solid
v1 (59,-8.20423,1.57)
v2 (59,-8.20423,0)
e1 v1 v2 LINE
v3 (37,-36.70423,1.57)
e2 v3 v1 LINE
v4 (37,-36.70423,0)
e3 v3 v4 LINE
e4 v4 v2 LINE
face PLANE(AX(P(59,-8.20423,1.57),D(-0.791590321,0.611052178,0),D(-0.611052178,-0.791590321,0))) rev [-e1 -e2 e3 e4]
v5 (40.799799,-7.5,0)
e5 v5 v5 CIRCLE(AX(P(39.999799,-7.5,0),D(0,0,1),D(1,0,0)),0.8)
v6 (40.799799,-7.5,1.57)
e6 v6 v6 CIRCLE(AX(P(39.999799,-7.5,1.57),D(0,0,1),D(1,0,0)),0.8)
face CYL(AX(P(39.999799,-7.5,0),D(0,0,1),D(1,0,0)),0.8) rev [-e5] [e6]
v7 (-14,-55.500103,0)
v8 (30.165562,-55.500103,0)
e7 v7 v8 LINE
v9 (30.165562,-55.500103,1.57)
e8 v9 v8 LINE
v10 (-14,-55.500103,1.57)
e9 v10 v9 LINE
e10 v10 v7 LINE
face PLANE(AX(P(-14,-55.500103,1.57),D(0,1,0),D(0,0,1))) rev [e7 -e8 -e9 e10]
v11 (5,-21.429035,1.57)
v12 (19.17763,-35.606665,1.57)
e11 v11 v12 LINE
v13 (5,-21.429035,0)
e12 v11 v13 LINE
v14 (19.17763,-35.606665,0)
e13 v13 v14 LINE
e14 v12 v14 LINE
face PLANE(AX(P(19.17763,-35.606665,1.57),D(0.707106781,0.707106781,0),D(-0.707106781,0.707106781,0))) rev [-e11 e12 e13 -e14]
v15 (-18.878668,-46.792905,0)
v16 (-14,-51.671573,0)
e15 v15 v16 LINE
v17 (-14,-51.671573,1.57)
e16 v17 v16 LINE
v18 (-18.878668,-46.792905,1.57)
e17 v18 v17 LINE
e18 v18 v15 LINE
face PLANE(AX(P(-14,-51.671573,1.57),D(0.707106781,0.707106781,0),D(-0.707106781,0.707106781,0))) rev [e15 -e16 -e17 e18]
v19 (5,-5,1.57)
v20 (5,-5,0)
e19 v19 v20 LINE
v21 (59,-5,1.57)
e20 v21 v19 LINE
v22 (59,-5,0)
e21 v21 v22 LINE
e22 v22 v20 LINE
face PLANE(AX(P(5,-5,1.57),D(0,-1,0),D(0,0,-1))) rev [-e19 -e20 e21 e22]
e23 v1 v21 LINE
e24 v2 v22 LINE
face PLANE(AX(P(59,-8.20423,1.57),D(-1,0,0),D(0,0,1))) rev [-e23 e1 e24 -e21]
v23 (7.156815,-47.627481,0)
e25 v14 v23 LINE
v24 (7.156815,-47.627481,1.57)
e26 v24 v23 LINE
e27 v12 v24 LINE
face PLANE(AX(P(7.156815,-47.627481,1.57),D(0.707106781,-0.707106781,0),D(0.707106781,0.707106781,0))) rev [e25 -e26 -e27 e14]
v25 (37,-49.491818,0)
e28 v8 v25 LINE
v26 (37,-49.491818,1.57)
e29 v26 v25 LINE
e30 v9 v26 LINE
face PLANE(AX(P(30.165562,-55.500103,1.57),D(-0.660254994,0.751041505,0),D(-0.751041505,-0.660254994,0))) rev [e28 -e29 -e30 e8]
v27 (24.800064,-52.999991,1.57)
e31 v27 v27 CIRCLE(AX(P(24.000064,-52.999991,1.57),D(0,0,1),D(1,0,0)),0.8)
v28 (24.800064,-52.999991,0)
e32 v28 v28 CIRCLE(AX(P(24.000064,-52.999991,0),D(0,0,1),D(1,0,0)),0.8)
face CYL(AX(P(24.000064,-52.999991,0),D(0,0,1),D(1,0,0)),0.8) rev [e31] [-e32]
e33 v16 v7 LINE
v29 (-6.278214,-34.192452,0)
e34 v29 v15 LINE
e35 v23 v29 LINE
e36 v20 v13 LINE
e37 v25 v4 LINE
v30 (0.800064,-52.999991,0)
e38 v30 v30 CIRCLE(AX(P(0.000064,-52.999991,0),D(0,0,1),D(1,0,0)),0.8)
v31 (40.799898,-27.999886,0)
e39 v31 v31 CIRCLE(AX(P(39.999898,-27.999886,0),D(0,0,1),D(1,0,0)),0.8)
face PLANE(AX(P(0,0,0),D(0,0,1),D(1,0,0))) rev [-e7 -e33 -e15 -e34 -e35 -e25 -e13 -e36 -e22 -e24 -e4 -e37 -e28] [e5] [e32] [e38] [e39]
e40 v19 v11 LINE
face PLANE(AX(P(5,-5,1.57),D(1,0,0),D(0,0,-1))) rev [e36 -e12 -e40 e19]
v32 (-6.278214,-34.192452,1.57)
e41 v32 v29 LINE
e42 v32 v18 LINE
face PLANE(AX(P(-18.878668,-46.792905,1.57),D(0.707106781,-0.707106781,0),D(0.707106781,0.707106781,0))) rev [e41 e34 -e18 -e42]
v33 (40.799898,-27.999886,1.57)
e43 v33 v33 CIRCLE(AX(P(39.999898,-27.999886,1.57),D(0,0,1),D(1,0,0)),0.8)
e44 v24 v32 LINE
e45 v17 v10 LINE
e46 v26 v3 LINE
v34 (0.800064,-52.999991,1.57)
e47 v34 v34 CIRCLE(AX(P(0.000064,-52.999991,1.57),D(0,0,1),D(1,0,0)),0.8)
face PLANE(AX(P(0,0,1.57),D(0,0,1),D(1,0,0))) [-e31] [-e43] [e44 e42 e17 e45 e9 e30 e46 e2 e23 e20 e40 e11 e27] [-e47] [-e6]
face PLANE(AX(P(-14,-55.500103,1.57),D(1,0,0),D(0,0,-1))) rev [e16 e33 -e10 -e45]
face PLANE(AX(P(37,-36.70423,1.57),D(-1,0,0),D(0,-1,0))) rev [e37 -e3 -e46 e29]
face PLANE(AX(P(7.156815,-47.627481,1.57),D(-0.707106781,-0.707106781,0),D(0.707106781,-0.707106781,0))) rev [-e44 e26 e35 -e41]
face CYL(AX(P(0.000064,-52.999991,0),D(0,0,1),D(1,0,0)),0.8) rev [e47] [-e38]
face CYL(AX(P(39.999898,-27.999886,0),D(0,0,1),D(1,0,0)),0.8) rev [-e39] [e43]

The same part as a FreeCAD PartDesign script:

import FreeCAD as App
import Part
import Sketcher
from FreeCAD import Vector
Q = App.Units.Quantity

doc = App.newDocument("Part")
body = doc.addObject("PartDesign::Body", "Body")

# Sketch on XY plane
sketch1 = body.newObject("Sketcher::SketchObject", "Sketch")
sketch1.AttachmentSupport = (doc.getObject("XY_Plane"), [""])
sketch1.MapMode = "FlatFace"
sketch1.addGeometry([
    Part.LineSegment(Vector(-14, -51.7, 0), Vector(-14, -55.5, 0)),  # 0
    Part.LineSegment(Vector(-14, -55.5, 0), Vector(30.2, -55.5, 0)),  # 1
    Part.LineSegment(Vector(30.2, -55.5, 0), Vector(37, -49.5, 0)),  # 2
    Part.LineSegment(Vector(37, -49.5, 0), Vector(37, -36.7, 0)),  # 3
    Part.LineSegment(Vector(37, -36.7, 0), Vector(59, -8.2, 0)),  # 4
    Part.LineSegment(Vector(59, -8.2, 0), Vector(59, -5, 0)),  # 5
    Part.LineSegment(Vector(59, -5, 0), Vector(5, -5, 0)),  # 6
    Part.LineSegment(Vector(5, -5, 0), Vector(5, -21.4, 0)),  # 7
    Part.LineSegment(Vector(5, -21.4, 0), Vector(19.2, -35.6, 0)),  # 8
    Part.LineSegment(Vector(19.2, -35.6, 0), Vector(7.2, -47.6, 0)),  # 9
    Part.LineSegment(Vector(7.2, -47.6, 0), Vector(-6.3, -34.2, 0)),  # 10
    Part.LineSegment(Vector(-6.3, -34.2, 0), Vector(-18.9, -46.8, 0)),  # 11
    Part.LineSegment(Vector(-18.9, -46.8, 0), Vector(-14, -51.7, 0)),  # 12
], False)
sketch1.addConstraint([
    Sketcher.Constraint("Coincident", 0, 2, 1, 1),
    Sketcher.Constraint("Coincident", 1, 2, 2, 1),
    Sketcher.Constraint("Coincident", 2, 2, 3, 1),
    Sketcher.Constraint("Coincident", 3, 2, 4, 1),
    Sketcher.Constraint("Coincident", 4, 2, 5, 1),
    Sketcher.Constraint("Coincident", 5, 2, 6, 1),
    Sketcher.Constraint("Coincident", 6, 2, 7, 1),
    Sketcher.Constraint("Coincident", 7, 2, 8, 1),
    Sketcher.Constraint("Coincident", 8, 2, 9, 1),
    Sketcher.Constraint("Coincident", 9, 2, 10, 1),
    Sketcher.Constraint("Coincident", 10, 2, 11, 1),
    Sketcher.Constraint("Coincident", 11, 2, 12, 1),
    Sketcher.Constraint("Coincident", 12, 2, 0, 1),
    Sketcher.Constraint("Vertical", 0),
    Sketcher.Constraint("Horizontal", 1),
    Sketcher.Constraint("Vertical", 3),
    Sketcher.Constraint("Vertical", 5),
    Sketcher.Constraint("Horizontal", 6),
    Sketcher.Constraint("Vertical", 7),
    Sketcher.Constraint("Perpendicular", 8, 9),
    Sketcher.Constraint("Perpendicular", 9, 10),
    Sketcher.Constraint("Perpendicular", 10, 11),
    Sketcher.Constraint("Perpendicular", 11, 12),
    Sketcher.Constraint("DistanceX", 6, 2, 6, 1, Q("54 mm")),
    Sketcher.Constraint("Angle", 8, Q("-45 deg")),
    Sketcher.Constraint("Distance", 9, Q("17 mm")),
    Sketcher.Constraint("Distance", 10, Q("19 mm")),
    Sketcher.Constraint("DistanceX", 0, 2, -1, 1, Q("14 mm")),
    Sketcher.Constraint("DistanceX", -1, 1, 2, 2, Q("37 mm")),
    Sketcher.Constraint("DistanceX", -1, 1, 4, 2, Q("59 mm")),
    Sketcher.Constraint("DistanceY", 5, 2, -1, 1, Q("5 mm")),
    Sketcher.Constraint("DistanceY", 3, 2, 4, 2, Q("28.5 mm")),
    Sketcher.Constraint("DistanceY", 0, 2, 0, 1, Q("3.82853 mm")),
    Sketcher.Constraint("DistanceY", 5, 1, 5, 2, Q("3.20423 mm")),
    Sketcher.Constraint("DistanceX", 1, 1, 1, 2, Q("44.165562 mm")),
    Sketcher.Constraint("DistanceY", 3, 1, 3, 2, Q("12.787588 mm")),
    Sketcher.Constraint("DistanceY", 7, 2, 7, 1, Q("16.429035 mm")),
    Sketcher.Constraint("DistanceX", -1, 1, 8, 2, Q("19.17763 mm")),
    Sketcher.Constraint("DistanceY", 0, 2, 10, 2, Q("21.307651 mm")),
])
pad1 = body.newObject("PartDesign::Pad", "Pad")
pad1.Profile = sketch1
pad1.Length = 1.57

# Sketch on XY plane
sketch2 = body.newObject("Sketcher::SketchObject", "Sketch001")
sketch2.AttachmentSupport = (doc.getObject("XY_Plane"), [""])
sketch2.MapMode = "FlatFace"
sketch2.AttachmentOffset = App.Placement(Vector(0, 0, 1.57), App.Rotation())
sketch2.addGeometry([
    Part.Circle(Vector(40, -7.5, 0), Vector(0, 0, 1), 0.8),
    Part.Circle(Vector(40, -28, 0), Vector(0, 0, 1), 0.8),
    Part.Circle(Vector(24, -53, 0), Vector(0, 0, 1), 0.8),
    Part.Circle(Vector(0, -53, 0), Vector(0, 0, 1), 0.8),
], False)
sketch2.addConstraint([
    Sketcher.Constraint("Equal", 0, 1),
    Sketcher.Constraint("Equal", 1, 2),
    Sketcher.Constraint("Equal", 2, 3),
    Sketcher.Constraint("Horizontal", 2, 3, 3, 3),
    Sketcher.Constraint("Diameter", 0, Q("1.6 mm")),
    Sketcher.Constraint("DistanceX", 3, 3, 2, 3, Q("24 mm")),
    Sketcher.Constraint("DistanceY", 0, 3, -1, 1, Q("7.5 mm")),
    Sketcher.Constraint("DistanceX", -1, 1, 0, 3, Q("39.999799 mm")),
    Sketcher.Constraint("DistanceX", -1, 1, 1, 3, Q("39.999898 mm")),
    Sketcher.Constraint("DistanceY", 2, 3, -1, 1, Q("52.999991 mm")),
    Sketcher.Constraint("DistanceY", 1, 3, -1, 1, Q("27.999886 mm")),
    Sketcher.Constraint("DistanceX", -1, 1, 2, 3, Q("24.000064 mm")),
])
pocket1 = body.newObject("PartDesign::Pocket", "Pocket")
pocket1.Profile = sketch2
pocket1.Type = "ThroughAll"

doc.recompute()
